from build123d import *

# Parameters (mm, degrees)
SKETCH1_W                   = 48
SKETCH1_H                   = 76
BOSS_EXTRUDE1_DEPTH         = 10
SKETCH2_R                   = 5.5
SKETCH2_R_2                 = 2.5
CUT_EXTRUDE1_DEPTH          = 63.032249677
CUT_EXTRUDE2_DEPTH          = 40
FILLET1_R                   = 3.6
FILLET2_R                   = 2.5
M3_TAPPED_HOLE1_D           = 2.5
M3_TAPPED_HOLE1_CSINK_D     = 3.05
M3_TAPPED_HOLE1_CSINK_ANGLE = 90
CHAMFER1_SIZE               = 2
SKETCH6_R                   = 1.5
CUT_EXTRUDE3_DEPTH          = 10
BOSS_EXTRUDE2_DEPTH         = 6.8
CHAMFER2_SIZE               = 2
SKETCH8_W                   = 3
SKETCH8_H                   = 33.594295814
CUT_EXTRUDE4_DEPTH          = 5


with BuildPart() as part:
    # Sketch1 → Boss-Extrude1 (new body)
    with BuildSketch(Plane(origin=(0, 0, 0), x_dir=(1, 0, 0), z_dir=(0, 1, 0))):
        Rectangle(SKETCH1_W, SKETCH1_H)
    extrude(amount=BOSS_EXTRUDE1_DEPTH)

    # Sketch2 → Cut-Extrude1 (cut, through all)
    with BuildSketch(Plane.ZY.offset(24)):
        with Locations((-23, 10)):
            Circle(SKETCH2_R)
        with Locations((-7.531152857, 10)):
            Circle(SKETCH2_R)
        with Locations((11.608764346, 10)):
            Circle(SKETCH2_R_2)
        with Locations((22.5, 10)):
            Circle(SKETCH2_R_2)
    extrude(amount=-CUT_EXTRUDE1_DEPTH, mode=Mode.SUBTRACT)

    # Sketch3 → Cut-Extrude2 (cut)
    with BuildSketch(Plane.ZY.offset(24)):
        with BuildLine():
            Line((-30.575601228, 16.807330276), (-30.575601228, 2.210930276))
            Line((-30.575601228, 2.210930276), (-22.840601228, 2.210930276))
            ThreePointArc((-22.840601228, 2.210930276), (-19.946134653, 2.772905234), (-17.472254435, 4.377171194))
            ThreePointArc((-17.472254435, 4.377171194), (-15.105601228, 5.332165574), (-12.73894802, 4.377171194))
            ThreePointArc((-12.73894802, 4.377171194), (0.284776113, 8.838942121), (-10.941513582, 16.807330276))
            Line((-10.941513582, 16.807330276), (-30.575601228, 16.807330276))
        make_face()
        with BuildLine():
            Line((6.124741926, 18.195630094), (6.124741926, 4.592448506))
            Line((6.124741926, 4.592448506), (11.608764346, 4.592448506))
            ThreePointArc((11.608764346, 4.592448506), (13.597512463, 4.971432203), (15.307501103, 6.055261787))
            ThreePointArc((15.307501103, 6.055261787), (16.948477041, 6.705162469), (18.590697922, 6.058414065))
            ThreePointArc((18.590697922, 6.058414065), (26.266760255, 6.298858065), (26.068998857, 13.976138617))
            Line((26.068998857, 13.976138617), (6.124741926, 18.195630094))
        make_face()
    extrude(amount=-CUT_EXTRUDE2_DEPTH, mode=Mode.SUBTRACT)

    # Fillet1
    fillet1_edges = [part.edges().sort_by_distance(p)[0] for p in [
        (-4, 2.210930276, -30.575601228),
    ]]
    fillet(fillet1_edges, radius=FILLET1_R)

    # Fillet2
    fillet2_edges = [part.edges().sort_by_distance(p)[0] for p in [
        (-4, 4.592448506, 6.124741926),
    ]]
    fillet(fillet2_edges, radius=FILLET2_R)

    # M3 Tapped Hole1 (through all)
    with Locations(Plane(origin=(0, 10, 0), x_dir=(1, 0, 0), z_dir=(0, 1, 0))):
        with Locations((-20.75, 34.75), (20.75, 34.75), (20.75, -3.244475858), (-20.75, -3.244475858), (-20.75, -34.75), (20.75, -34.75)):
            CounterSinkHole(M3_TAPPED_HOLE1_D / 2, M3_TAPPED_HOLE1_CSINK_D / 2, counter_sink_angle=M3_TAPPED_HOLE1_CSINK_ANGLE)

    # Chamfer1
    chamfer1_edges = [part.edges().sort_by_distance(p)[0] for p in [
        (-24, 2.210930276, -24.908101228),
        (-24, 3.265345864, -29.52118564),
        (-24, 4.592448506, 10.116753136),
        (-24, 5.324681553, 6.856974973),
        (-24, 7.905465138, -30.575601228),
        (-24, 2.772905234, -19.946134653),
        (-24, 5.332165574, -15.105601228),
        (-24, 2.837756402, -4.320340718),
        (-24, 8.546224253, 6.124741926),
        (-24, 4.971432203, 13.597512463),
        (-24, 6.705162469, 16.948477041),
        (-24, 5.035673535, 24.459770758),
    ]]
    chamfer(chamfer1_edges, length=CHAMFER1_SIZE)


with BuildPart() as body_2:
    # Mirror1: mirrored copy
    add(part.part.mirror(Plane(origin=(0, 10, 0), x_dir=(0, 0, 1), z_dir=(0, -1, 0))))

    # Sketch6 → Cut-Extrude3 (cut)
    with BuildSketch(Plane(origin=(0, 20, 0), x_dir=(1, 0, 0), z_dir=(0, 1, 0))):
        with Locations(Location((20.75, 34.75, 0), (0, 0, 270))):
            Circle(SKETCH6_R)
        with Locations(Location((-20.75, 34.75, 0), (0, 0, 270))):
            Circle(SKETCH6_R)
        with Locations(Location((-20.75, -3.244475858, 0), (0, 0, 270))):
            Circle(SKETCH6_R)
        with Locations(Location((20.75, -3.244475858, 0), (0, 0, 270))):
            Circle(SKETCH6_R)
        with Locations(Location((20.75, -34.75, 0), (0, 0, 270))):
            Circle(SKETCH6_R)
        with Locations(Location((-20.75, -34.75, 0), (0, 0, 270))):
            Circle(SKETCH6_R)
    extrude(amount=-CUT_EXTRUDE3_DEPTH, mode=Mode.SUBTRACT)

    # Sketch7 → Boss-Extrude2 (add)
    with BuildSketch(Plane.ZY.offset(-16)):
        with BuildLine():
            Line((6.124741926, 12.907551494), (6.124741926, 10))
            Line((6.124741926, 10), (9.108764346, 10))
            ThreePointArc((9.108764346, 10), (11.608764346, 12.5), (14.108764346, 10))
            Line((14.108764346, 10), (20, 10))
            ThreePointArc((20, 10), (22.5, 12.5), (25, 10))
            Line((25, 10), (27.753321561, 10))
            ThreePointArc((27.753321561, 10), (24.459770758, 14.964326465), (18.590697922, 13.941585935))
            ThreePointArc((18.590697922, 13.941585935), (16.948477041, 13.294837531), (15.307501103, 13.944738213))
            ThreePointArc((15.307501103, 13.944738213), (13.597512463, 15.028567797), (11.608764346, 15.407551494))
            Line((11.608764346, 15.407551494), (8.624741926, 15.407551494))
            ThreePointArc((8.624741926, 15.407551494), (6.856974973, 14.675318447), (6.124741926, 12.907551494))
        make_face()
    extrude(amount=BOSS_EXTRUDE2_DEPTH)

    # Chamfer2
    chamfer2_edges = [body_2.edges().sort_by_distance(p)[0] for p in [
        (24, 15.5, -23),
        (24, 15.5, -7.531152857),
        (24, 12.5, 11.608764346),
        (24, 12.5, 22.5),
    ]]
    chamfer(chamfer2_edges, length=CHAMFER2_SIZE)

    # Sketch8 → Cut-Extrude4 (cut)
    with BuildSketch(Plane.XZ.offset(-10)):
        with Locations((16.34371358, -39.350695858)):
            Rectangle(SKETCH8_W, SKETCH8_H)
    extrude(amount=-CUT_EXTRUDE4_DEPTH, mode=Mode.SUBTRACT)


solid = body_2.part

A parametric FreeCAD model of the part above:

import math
import FreeCAD as App
import Part
import Sketcher
Q = App.Units.Quantity


def edges_at(feature, points):
    """Names of the edges that pass closest to the given points."""
    edges = feature.Shape.Edges
    near = lambda p: min(range(len(edges)), key=lambda i: edges[i].distToShape(Part.Vertex(*p))[0])
    return sorted({f"Edge{near(p) + 1}" for p in points})

doc = App.newDocument("Part")
body = doc.addObject("PartDesign::Body", "Body")

sketch1 = body.newObject("Sketcher::SketchObject", "Sketch")
sketch1.AttachmentSupport = (doc.getObject("XZ_Plane"), [""])
sketch1.MapMode = "FlatFace"
sketch1.addGeometry(Part.LineSegment(App.Vector(-24, -38, 0), App.Vector(-24, 38, 0)), False)
sketch1.addGeometry(Part.LineSegment(App.Vector(-24, 38, 0), App.Vector(24, 38, 0)), False)
sketch1.addGeometry(Part.LineSegment(App.Vector(24, 38, 0), App.Vector(24, -38, 0)), False)
sketch1.addGeometry(Part.LineSegment(App.Vector(24, -38, 0), App.Vector(-24, -38, 0)), False)
sketch1.addConstraint(Sketcher.Constraint("Coincident", 0, 2, 1, 1))
sketch1.addConstraint(Sketcher.Constraint("Coincident", 1, 2, 2, 1))
sketch1.addConstraint(Sketcher.Constraint("Coincident", 2, 2, 3, 1))
sketch1.addConstraint(Sketcher.Constraint("Coincident", 3, 2, 0, 1))
sketch1.addConstraint(Sketcher.Constraint("Vertical", 0))
sketch1.addConstraint(Sketcher.Constraint("Horizontal", 1))
sketch1.addConstraint(Sketcher.Constraint("Vertical", 2))
sketch1.addConstraint(Sketcher.Constraint("Horizontal", 3))
sketch1.addConstraint(Sketcher.Constraint("Symmetric", 0, 2, 2, 2, -1, 1))
sketch1.addConstraint(Sketcher.Constraint("DistanceX", 1, 1, 1, 2, Q("48 mm")))
sketch1.addConstraint(Sketcher.Constraint("DistanceY", 0, 1, 0, 2, Q("76 mm")))
pad1 = body.newObject("PartDesign::Pad", "Pad")
pad1.Profile = sketch1
pad1.Length = 10
pad1.Reversed = True

sketch2 = body.newObject("Sketcher::SketchObject", "Sketch001")
sketch2.AttachmentSupport = (doc.getObject("YZ_Plane"), [""])
sketch2.MapMode = "FlatFace"
sketch2.AttachmentOffset = App.Placement(App.Vector(0, 0, -24), App.Rotation())
sketch2.addGeometry(Part.Circle(App.Vector(10, -23, 0), App.Vector(0, 0, 1), 5.5), False)
sketch2.addGeometry(Part.Circle(App.Vector(10, -7.531153, 0), App.Vector(0, 0, 1), 5.5), False)
sketch2.addGeometry(Part.Circle(App.Vector(10, 11.608764, 0), App.Vector(0, 0, 1), 2.5), False)
sketch2.addGeometry(Part.Circle(App.Vector(10, 22.5, 0), App.Vector(0, 0, 1), 2.5), False)
sketch2.addConstraint(Sketcher.Constraint("Equal", 0, 1))
sketch2.addConstraint(Sketcher.Constraint("Equal", 2, 3))
sketch2.addConstraint(Sketcher.Constraint("Vertical", 0, 3, 1, 3))
sketch2.addConstraint(Sketcher.Constraint("Vertical", 1, 3, 2, 3))
sketch2.addConstraint(Sketcher.Constraint("Vertical", 2, 3, 3, 3))
sketch2.addConstraint(Sketcher.Constraint("Diameter", 0, Q("11 mm")))
sketch2.addConstraint(Sketcher.Constraint("Diameter", 2, Q("5 mm")))
sketch2.addConstraint(Sketcher.Constraint("DistanceX", -1, 1, 0, 3, Q("10 mm")))
sketch2.addConstraint(Sketcher.Constraint("DistanceY", 0, 3, -1, 1, Q("23 mm")))
sketch2.addConstraint(Sketcher.Constraint("DistanceY", -1, 1, 3, 3, Q("22.5 mm")))
sketch2.addConstraint(Sketcher.Constraint("DistanceY", 1, 3, -1, 1, Q("7.531153 mm")))
sketch2.addConstraint(Sketcher.Constraint("DistanceY", -1, 1, 2, 3, Q("11.608764 mm")))
pocket1 = body.newObject("PartDesign::Pocket", "Pocket")
pocket1.Profile = sketch2
pocket1.Type = "ThroughAll"
pocket1.Reversed = True

sketch3 = body.newObject("Sketcher::SketchObject", "Sketch002")
sketch3.AttachmentSupport = (doc.getObject("YZ_Plane"), [""])
sketch3.MapMode = "FlatFace"
sketch3.AttachmentOffset = App.Placement(App.Vector(0, 0, -24), App.Rotation())
sketch3.addGeometry(Part.LineSegment(App.Vector(16.80733, -30.575601, 0), App.Vector(2.21093, -30.575601, 0)), False)
sketch3.addGeometry(Part.LineSegment(App.Vector(2.21093, -30.575601, 0), App.Vector(2.21093, -22.840601, 0)), False)
sketch3.addGeometry(Part.ArcOfCircle(Part.Circle(App.Vector(9.94593, -22.840601, 0), App.Vector(0, 0, 1), 7.735), math.radians(136.049774), math.radians(180)), False)
sketch3.addGeometry(Part.ArcOfCircle(Part.Circle(App.Vector(1.922166, -15.105601, 0), App.Vector(0, 0, 1), 3.41), math.radians(-43.950226), math.radians(43.950226)), False)
sketch3.addGeometry(Part.ArcOfCircle(Part.Circle(App.Vector(9.94593, -7.370601, 0), App.Vector(0, 0, 1), 7.735), math.radians(-27.494045), math.radians(223.950226)), False)
sketch3.addGeometry(Part.LineSegment(App.Vector(16.80733, -10.941514, 0), App.Vector(16.80733, -30.575601, 0)), False)
sketch3.addGeometry(Part.LineSegment(App.Vector(18.19563, 6.124742, 0), App.Vector(4.592449, 6.124742, 0)), False)
sketch3.addGeometry(Part.LineSegment(App.Vector(4.592449, 6.124742, 0), App.Vector(4.592449, 11.608764, 0)), False)
sketch3.addGeometry(Part.ArcOfCircle(Part.Circle(App.Vector(10, 11.608764, 0), App.Vector(0, 0, 1), 5.407551), math.radians(136.8434), math.radians(180)), False)
sketch3.addGeometry(Part.ArcOfCircle(Part.Circle(App.Vector(4.302685, 16.950784, 0), App.Vector(0, 0, 1), 2.402478), math.radians(-43.1566), math.radians(43.046578)), False)
sketch3.addGeometry(Part.ArcOfCircle(Part.Circle(App.Vector(10.038066, 22.307837, 0), App.Vector(0, 0, 1), 5.445618), math.radians(43.68371), math.radians(223.046578)), False)
sketch3.addGeometry(Part.LineSegment(App.Vector(13.976139, 26.068999, 0), App.Vector(18.19563, 6.124742, 0)), False)
sketch3.addConstraint(Sketcher.Constraint("Coincident", 0, 2, 1, 1))
sketch3.addConstraint(Sketcher.Constraint("Tangent", 1, 2, 2, 2))
sketch3.addConstraint(Sketcher.Constraint("Tangent", 2, 1, 3, 1))
sketch3.addConstraint(Sketcher.Constraint("Tangent", 3, 2, 4, 2))
sketch3.addConstraint(Sketcher.Constraint("Coincident", 4, 1, 5, 1))
sketch3.addConstraint(Sketcher.Constraint("Coincident", 5, 2, 0, 1))
sketch3.addConstraint(Sketcher.Constraint("Coincident", 6, 2, 7, 1))
sketch3.addConstraint(Sketcher.Constraint("Tangent", 7, 2, 8, 2))
sketch3.addConstraint(Sketcher.Constraint("Tangent", 8, 1, 9, 1))
sketch3.addConstraint(Sketcher.Constraint("Tangent", 9, 2, 10, 2))
sketch3.addConstraint(Sketcher.Constraint("Coincident", 10, 1, 11, 1))
sketch3.addConstraint(Sketcher.Constraint("Coincident", 11, 2, 6, 1))
sketch3.addConstraint(Sketcher.Constraint("Horizontal", 0))
sketch3.addConstraint(Sketcher.Constraint("Vertical", 1))
sketch3.addConstraint(Sketcher.Constraint("Vertical", 5))
sketch3.addConstraint(Sketcher.Constraint("Horizontal", 6))
sketch3.addConstraint(Sketcher.Constraint("Vertical", 7))
sketch3.addConstraint(Sketcher.Constraint("Equal", 2, 4))
sketch3.addConstraint(Sketcher.Constraint("Vertical", 2, 3, 4, 3))
sketch3.addConstraint(Sketcher.Constraint("Radius", 3, Q("3.41 mm")))
sketch3.addConstraint(Sketcher.Constraint("DistanceX", -1, 1, 8, 3, Q("10 mm")))
sketch3.addConstraint(Sketcher.Constraint("Radius", 2, Q("7.735 mm")))
sketch3.addConstraint(Sketcher.Constraint("DistanceY", 1, 1, 1, 2, Q("7.735 mm")))
sketch3.addConstraint(Sketcher.Constraint("Radius", 8, Q("5.407551 mm")))
sketch3.addConstraint(Sketcher.Constraint("Radius", 9, Q("2.402478 mm")))
sketch3.addConstraint(Sketcher.Constraint("DistanceY", 2, 3, 4, 3, Q("15.47 mm")))
sketch3.addConstraint(Sketcher.Constraint("DistanceX", 0, 2, 0, 1, Q("14.5964 mm")))
sketch3.addConstraint(Sketcher.Constraint("DistanceY", -1, 1, 10, 1, Q("26.068999 mm")))
sketch3.addConstraint(Sketcher.Constraint("Radius", 10, Q("5.445618 mm")))
sketch3.addConstraint(Sketcher.Constraint("DistanceX", 6, 2, 6, 1, Q("13.603182 mm")))
sketch3.addConstraint(Sketcher.Constraint("DistanceY", 2, 3, -1, 1, Q("22.840601 mm")))
sketch3.addConstraint(Sketcher.Constraint("DistanceY", -1, 1, 8, 1, Q("15.307501 mm")))
sketch3.addConstraint(Sketcher.Constraint("DistanceX", 3, 3, 10, 3, Q("8.115901 mm")))
sketch3.addConstraint(Sketcher.Constraint("DistanceY", 9, 2, 10, 1, Q("7.478301 mm")))
sketch3.addConstraint(Sketcher.Constraint("DistanceX", 4, 3, 11, 2, Q("8.2497 mm")))
sketch3.addConstraint(Sketcher.Constraint("DistanceY", 7, 1, 7, 2, Q("5.484022 mm")))
pocket2 = body.newObject("PartDesign::Pocket", "Pocket001")
pocket2.Profile = sketch3
pocket2.Length = 40
pocket2.Reversed = True
doc.recompute()

fillet = body.newObject("PartDesign::Fillet", "Fillet")
fillet.Base = (pocket2, edges_at(pocket2, [(-4, 2.211, -30.576)]))
fillet.Radius = 3.6
doc.recompute()

fillet2 = body.newObject("PartDesign::Fillet", "Fillet001")
fillet2.Base = (fillet, edges_at(fillet, [(-4, 4.592, 6.125)]))
fillet2.Radius = 2.5

sketch4 = body.newObject("Sketcher::SketchObject", "Sketch003")
sketch4.AttachmentSupport = (doc.getObject("XZ_Plane"), [""])
sketch4.MapMode = "FlatFace"
sketch4.AttachmentOffset = App.Placement(App.Vector(0, 0, -10), App.Rotation())
sketch4.addGeometry(Part.Circle(App.Vector(-20.75, -34.75, 0), App.Vector(0, 0, 1), 1.25), False)
sketch4.addGeometry(Part.Circle(App.Vector(20.75, -34.75, 0), App.Vector(0, 0, 1), 1.25), False)
sketch4.addGeometry(Part.Circle(App.Vector(20.75, 3.244476, 0), App.Vector(0, 0, 1), 1.25), False)
sketch4.addGeometry(Part.Circle(App.Vector(-20.75, 3.244476, 0), App.Vector(0, 0, 1), 1.25), False)
sketch4.addGeometry(Part.Circle(App.Vector(-20.75, 34.75, 0), App.Vector(0, 0, 1), 1.25), False)
sketch4.addGeometry(Part.Circle(App.Vector(20.75, 34.75, 0), App.Vector(0, 0, 1), 1.25), False)
sketch4.addConstraint(Sketcher.Constraint("Equal", 0, 1))
sketch4.addConstraint(Sketcher.Constraint("Equal", 1, 2))
sketch4.addConstraint(Sketcher.Constraint("Equal", 2, 3))
sketch4.addConstraint(Sketcher.Constraint("Equal", 3, 4))
sketch4.addConstraint(Sketcher.Constraint("Equal", 4, 5))
sketch4.addConstraint(Sketcher.Constraint("Symmetric", 1, 3, 4, 3, -1, 1))
sketch4.addConstraint(Sketcher.Constraint("Symmetric", 0, 3, 5, 3, -1, 1))
sketch4.addConstraint(Sketcher.Constraint("Symmetric", 0, 3, 1, 3, -2))
sketch4.addConstraint(Sketcher.Constraint("Symmetric", 2, 3, 3, 3, -2))
sketch4.addConstraint(Sketcher.Constraint("Vertical", 1, 3, 2, 3))
sketch4.addConstraint(Sketcher.Constraint("Diameter", 0, Q("2.5 mm")))
sketch4.addConstraint(Sketcher.Constraint("DistanceX", 0, 3, 1, 3, Q("41.5 mm")))
sketch4.addConstraint(Sketcher.Constraint("DistanceY", 0, 3, 4, 3, Q("69.5 mm")))
sketch4.addConstraint(Sketcher.Constraint("DistanceY", -1, 1, 2, 3, Q("3.244476 mm")))
doc.recompute()
hole = body.newObject("PartDesign::Hole", "Hole")
hole.Profile = sketch4
hole.ThreadType = "None"
hole.Diameter = 2.5
hole.DepthType = "ThroughAll"
hole.HoleCutType = "Countersink"
hole.HoleCutDiameter = 3.05
hole.HoleCutCountersinkAngle = 90
hole.Reversed = True
doc.recompute()

chamfer = body.newObject("PartDesign::Chamfer", "Chamfer")
chamfer.Base = (hole, edges_at(hole, [
    (-24, 2.211, -24.908),
    (-24, 3.265, -29.521),
    (-24, 4.592, 10.117),
    (-24, 5.325, 6.857),
    (-24, 7.905, -30.576),
    (-24, 2.773, -19.946),
    (-24, 5.332, -15.106),
    (-24, 2.838, -4.32),
    (-24, 8.546, 6.125),
    (-24, 4.971, 13.598),
    (-24, 6.705, 16.948),
    (-24, 5.036, 24.46),
]))
chamfer.Size = 2
body2 = doc.addObject("PartDesign::Body", "Body001")
doc.recompute()

mirroring = doc.addObject("Part::Mirroring", "Mirroring")
mirroring.Source = body
mirroring.Base = App.Vector(0, 10, 0)
mirroring.Normal = App.Vector(0, -1, 0)
body2.BaseFeature = mirroring
doc.recompute()

sketch5 = body2.newObject("Sketcher::SketchObject", "Sketch004")
sketch5.AttachmentSupport = (doc.getObject("XZ_Plane001"), [""])
sketch5.MapMode = "FlatFace"
sketch5.AttachmentOffset = App.Placement(App.Vector(0, 0, -20), App.Rotation())
sketch5.addGeometry(Part.Circle(App.Vector(20.75, -34.75, 0), App.Vector(0, 0, 1), 1.5), False)
sketch5.addGeometry(Part.Circle(App.Vector(-20.75, -34.75, 0), App.Vector(0, 0, 1), 1.5), False)
sketch5.addGeometry(Part.Circle(App.Vector(-20.75, 3.244476, 0), App.Vector(0, 0, 1), 1.5), False)
sketch5.addGeometry(Part.Circle(App.Vector(20.75, 3.244476, 0), App.Vector(0, 0, 1), 1.5), False)
sketch5.addGeometry(Part.Circle(App.Vector(20.75, 34.75, 0), App.Vector(0, 0, 1), 1.5), False)
sketch5.addGeometry(Part.Circle(App.Vector(-20.75, 34.75, 0), App.Vector(0, 0, 1), 1.5), False)
sketch5.addConstraint(Sketcher.Constraint("Equal", 0, 1))
sketch5.addConstraint(Sketcher.Constraint("Equal", 1, 2))
sketch5.addConstraint(Sketcher.Constraint("Equal", 2, 3))
sketch5.addConstraint(Sketcher.Constraint("Equal", 3, 4))
sketch5.addConstraint(Sketcher.Constraint("Equal", 4, 5))
sketch5.addConstraint(Sketcher.Constraint("Symmetric", 1, 3, 4, 3, -1, 1))
sketch5.addConstraint(Sketcher.Constraint("Symmetric", 0, 3, 5, 3, -1, 1))
sketch5.addConstraint(Sketcher.Constraint("Symmetric", 0, 3, 1, 3, -2))
sketch5.addConstraint(Sketcher.Constraint("Symmetric", 2, 3, 3, 3, -2))
sketch5.addConstraint(Sketcher.Constraint("Vertical", 1, 3, 2, 3))
sketch5.addConstraint(Sketcher.Constraint("Diameter", 0, Q("3 mm")))
sketch5.addConstraint(Sketcher.Constraint("DistanceX", 1, 3, 0, 3, Q("41.5 mm")))
sketch5.addConstraint(Sketcher.Constraint("DistanceY", 0, 3, 4, 3, Q("69.5 mm")))
sketch5.addConstraint(Sketcher.Constraint("DistanceY", -1, 1, 2, 3, Q("3.244476 mm")))
pocket3 = body2.newObject("PartDesign::Pocket", "Pocket002")
pocket3.Profile = sketch5
pocket3.Length = 10
pocket3.Reversed = True

sketch6 = body2.newObject("Sketcher::SketchObject", "Sketch005")
sketch6.AttachmentSupport = (doc.getObject("YZ_Plane001"), [""])
sketch6.MapMode = "FlatFace"
sketch6.AttachmentOffset = App.Placement(App.Vector(0, 0, 16), App.Rotation())
sketch6.addGeometry(Part.LineSegment(App.Vector(12.907551, 6.124742, 0), App.Vector(10, 6.124742, 0)), False)
sketch6.addGeometry(Part.LineSegment(App.Vector(10, 6.124742, 0), App.Vector(10, 9.108764, 0)), False)
sketch6.addGeometry(Part.ArcOfCircle(Part.Circle(App.Vector(10, 11.608764, 0), App.Vector(0, 0, 1), 2.5), math.radians(-90), math.radians(90)), False)
sketch6.addGeometry(Part.LineSegment(App.Vector(10, 14.108764, 0), App.Vector(10, 20, 0)), False)
sketch6.addGeometry(Part.ArcOfCircle(Part.Circle(App.Vector(10, 22.5, 0), App.Vector(0, 0, 1), 2.5), math.radians(-90), math.radians(90)), False)
sketch6.addGeometry(Part.LineSegment(App.Vector(10, 25, 0), App.Vector(10, 27.753322, 0)), False)
sketch6.addGeometry(Part.ArcOfCircle(Part.Circle(App.Vector(9.961934, 22.307837, 0), App.Vector(0, 0, 1), 5.445618), math.radians(-43.046578), math.radians(89.599484)), False)
sketch6.addGeometry(Part.ArcOfCircle(Part.Circle(App.Vector(15.697315, 16.950784, 0), App.Vector(0, 0, 1), 2.402478), math.radians(136.953422), math.radians(223.1566)), False)
sketch6.addGeometry(Part.ArcOfCircle(Part.Circle(App.Vector(10, 11.608764, 0), App.Vector(0, 0, 1), 5.407551), math.radians(0), math.radians(43.1566)), False)
sketch6.addGeometry(Part.LineSegment(App.Vector(15.407551, 11.608764, 0), App.Vector(15.407551, 8.624742, 0)), False)
sketch6.addGeometry(Part.ArcOfCircle(Part.Circle(App.Vector(12.907551, 8.624742, 0), App.Vector(0, 0, 1), 2.5), math.radians(-90), math.radians(0)), False)
sketch6.addConstraint(Sketcher.Constraint("Coincident", 0, 2, 1, 1))
sketch6.addConstraint(Sketcher.Constraint("Coincident", 1, 2, 2, 1))
sketch6.addConstraint(Sketcher.Constraint("Coincident", 2, 2, 3, 1))
sketch6.addConstraint(Sketcher.Constraint("Coincident", 3, 2, 4, 1))
sketch6.addConstraint(Sketcher.Constraint("Coincident", 4, 2, 5, 1))
sketch6.addConstraint(Sketcher.Constraint("Coincident", 5, 2, 6, 2))
sketch6.addConstraint(Sketcher.Constraint("Tangent", 6, 1, 7, 1))
sketch6.addConstraint(Sketcher.Constraint("Tangent", 7, 2, 8, 2))
sketch6.addConstraint(Sketcher.Constraint("Tangent", 8, 1, 9, 1))
sketch6.addConstraint(Sketcher.Constraint("Tangent", 9, 2, 10, 2))
sketch6.addConstraint(Sketcher.Constraint("Tangent", 10, 1, 0, 1))
sketch6.addConstraint(Sketcher.Constraint("Horizontal", 0))
sketch6.addConstraint(Sketcher.Constraint("Vertical", 1))
sketch6.addConstraint(Sketcher.Constraint("Vertical", 3))
sketch6.addConstraint(Sketcher.Constraint("Vertical", 5))
sketch6.addConstraint(Sketcher.Constraint("Vertical", 9))
sketch6.addConstraint(Sketcher.Constraint("Coincident", 8, 3, 2, 3))
sketch6.addConstraint(Sketcher.Constraint("Equal", 2, 4))
sketch6.addConstraint(Sketcher.Constraint("Equal", 4, 10))
sketch6.addConstraint(Sketcher.Constraint("Vertical", 2, 3, 4, 3))
sketch6.addConstraint(Sketcher.Constraint("Vertical", 8, 3, 0, 2))
sketch6.addConstraint(Sketcher.Constraint("Vertical", 1, 2, 2, 2))
sketch6.addConstraint(Sketcher.Constraint("Vertical", 3, 2, 4, 2))
sketch6.addConstraint(Sketcher.Constraint("Radius", 2, Q("2.5 mm")))
sketch6.addConstraint(Sketcher.Constraint("DistanceX", -1, 1, 2, 3, Q("10 mm")))
sketch6.addConstraint(Sketcher.Constraint("DistanceY", -1, 1, 3, 2, Q("20 mm")))
sketch6.addConstraint(Sketcher.Constraint("Radius", 7, Q("2.402478 mm")))
sketch6.addConstraint(Sketcher.Constraint("Radius", 8, Q("5.407551 mm")))
sketch6.addConstraint(Sketcher.Constraint("Radius", 6, Q("5.445618 mm")))
sketch6.addConstraint(Sketcher.Constraint("DistanceY", 5, 1, 5, 2, Q("2.753322 mm")))
sketch6.addConstraint(Sketcher.Constraint("DistanceY", -1, 1, 7, 2, Q("15.307501 mm")))
sketch6.addConstraint(Sketcher.Constraint("DistanceY", 1, 1, 1, 2, Q("2.984022 mm")))
sketch6.addConstraint(Sketcher.Constraint("DistanceY", 3, 1, 3, 2, Q("5.891236 mm")))
pad2 = body2.newObject("PartDesign::Pad", "Pad001")
pad2.Profile = sketch6
pad2.Length = 6.8
pad2.Reversed = True
doc.recompute()

chamfer2 = body2.newObject("PartDesign::Chamfer", "Chamfer001")
chamfer2.Base = (pad2, edges_at(pad2, [
    (24, 15.5, -23),
    (24, 15.5, -7.531),
    (24, 12.5, 11.609),
    (24, 12.5, 22.5),
]))
chamfer2.Size = 2

sketch7 = body2.newObject("Sketcher::SketchObject", "Sketch006")
sketch7.AttachmentSupport = (doc.getObject("XZ_Plane001"), [""])
sketch7.MapMode = "FlatFace"
sketch7.AttachmentOffset = App.Placement(App.Vector(0, 0, -10), App.Rotation())
sketch7.addGeometry(Part.LineSegment(App.Vector(14.843714, -22.553548, 0), App.Vector(14.843714, -56.147844, 0)), False)
sketch7.addGeometry(Part.LineSegment(App.Vector(14.843714, -56.147844, 0), App.Vector(17.843714, -56.147844, 0)), False)
sketch7.addGeometry(Part.LineSegment(App.Vector(17.843714, -56.147844, 0), App.Vector(17.843714, -22.553548, 0)), False)
sketch7.addGeometry(Part.LineSegment(App.Vector(17.843714, -22.553548, 0), App.Vector(14.843714, -22.553548, 0)), False)
sketch7.addConstraint(Sketcher.Constraint("Coincident", 0, 2, 1, 1))
sketch7.addConstraint(Sketcher.Constraint("Coincident", 1, 2, 2, 1))
sketch7.addConstraint(Sketcher.Constraint("Coincident", 2, 2, 3, 1))
sketch7.addConstraint(Sketcher.Constraint("Coincident", 3, 2, 0, 1))
sketch7.addConstraint(Sketcher.Constraint("Vertical", 0))
sketch7.addConstraint(Sketcher.Constraint("Horizontal", 1))
sketch7.addConstraint(Sketcher.Constraint("Vertical", 2))
sketch7.addConstraint(Sketcher.Constraint("Horizontal", 3))
sketch7.addConstraint(Sketcher.Constraint("DistanceX", 1, 1, 1, 2, Q("3 mm")))
sketch7.addConstraint(Sketcher.Constraint("DistanceY", 0, 2, 0, 1, Q("33.594296 mm")))
sketch7.addConstraint(Sketcher.Constraint("DistanceX", -1, 1, 0, 2, Q("14.843714 mm")))
sketch7.addConstraint(Sketcher.Constraint("DistanceY", 0, 2, -1, 1, Q("56.147844 mm")))
pocket4 = body2.newObject("PartDesign::Pocket", "Pocket003")
pocket4.Profile = sketch7
pocket4.Length = 5
body.Visibility = False
mirroring.Visibility = False

doc.recompute()
